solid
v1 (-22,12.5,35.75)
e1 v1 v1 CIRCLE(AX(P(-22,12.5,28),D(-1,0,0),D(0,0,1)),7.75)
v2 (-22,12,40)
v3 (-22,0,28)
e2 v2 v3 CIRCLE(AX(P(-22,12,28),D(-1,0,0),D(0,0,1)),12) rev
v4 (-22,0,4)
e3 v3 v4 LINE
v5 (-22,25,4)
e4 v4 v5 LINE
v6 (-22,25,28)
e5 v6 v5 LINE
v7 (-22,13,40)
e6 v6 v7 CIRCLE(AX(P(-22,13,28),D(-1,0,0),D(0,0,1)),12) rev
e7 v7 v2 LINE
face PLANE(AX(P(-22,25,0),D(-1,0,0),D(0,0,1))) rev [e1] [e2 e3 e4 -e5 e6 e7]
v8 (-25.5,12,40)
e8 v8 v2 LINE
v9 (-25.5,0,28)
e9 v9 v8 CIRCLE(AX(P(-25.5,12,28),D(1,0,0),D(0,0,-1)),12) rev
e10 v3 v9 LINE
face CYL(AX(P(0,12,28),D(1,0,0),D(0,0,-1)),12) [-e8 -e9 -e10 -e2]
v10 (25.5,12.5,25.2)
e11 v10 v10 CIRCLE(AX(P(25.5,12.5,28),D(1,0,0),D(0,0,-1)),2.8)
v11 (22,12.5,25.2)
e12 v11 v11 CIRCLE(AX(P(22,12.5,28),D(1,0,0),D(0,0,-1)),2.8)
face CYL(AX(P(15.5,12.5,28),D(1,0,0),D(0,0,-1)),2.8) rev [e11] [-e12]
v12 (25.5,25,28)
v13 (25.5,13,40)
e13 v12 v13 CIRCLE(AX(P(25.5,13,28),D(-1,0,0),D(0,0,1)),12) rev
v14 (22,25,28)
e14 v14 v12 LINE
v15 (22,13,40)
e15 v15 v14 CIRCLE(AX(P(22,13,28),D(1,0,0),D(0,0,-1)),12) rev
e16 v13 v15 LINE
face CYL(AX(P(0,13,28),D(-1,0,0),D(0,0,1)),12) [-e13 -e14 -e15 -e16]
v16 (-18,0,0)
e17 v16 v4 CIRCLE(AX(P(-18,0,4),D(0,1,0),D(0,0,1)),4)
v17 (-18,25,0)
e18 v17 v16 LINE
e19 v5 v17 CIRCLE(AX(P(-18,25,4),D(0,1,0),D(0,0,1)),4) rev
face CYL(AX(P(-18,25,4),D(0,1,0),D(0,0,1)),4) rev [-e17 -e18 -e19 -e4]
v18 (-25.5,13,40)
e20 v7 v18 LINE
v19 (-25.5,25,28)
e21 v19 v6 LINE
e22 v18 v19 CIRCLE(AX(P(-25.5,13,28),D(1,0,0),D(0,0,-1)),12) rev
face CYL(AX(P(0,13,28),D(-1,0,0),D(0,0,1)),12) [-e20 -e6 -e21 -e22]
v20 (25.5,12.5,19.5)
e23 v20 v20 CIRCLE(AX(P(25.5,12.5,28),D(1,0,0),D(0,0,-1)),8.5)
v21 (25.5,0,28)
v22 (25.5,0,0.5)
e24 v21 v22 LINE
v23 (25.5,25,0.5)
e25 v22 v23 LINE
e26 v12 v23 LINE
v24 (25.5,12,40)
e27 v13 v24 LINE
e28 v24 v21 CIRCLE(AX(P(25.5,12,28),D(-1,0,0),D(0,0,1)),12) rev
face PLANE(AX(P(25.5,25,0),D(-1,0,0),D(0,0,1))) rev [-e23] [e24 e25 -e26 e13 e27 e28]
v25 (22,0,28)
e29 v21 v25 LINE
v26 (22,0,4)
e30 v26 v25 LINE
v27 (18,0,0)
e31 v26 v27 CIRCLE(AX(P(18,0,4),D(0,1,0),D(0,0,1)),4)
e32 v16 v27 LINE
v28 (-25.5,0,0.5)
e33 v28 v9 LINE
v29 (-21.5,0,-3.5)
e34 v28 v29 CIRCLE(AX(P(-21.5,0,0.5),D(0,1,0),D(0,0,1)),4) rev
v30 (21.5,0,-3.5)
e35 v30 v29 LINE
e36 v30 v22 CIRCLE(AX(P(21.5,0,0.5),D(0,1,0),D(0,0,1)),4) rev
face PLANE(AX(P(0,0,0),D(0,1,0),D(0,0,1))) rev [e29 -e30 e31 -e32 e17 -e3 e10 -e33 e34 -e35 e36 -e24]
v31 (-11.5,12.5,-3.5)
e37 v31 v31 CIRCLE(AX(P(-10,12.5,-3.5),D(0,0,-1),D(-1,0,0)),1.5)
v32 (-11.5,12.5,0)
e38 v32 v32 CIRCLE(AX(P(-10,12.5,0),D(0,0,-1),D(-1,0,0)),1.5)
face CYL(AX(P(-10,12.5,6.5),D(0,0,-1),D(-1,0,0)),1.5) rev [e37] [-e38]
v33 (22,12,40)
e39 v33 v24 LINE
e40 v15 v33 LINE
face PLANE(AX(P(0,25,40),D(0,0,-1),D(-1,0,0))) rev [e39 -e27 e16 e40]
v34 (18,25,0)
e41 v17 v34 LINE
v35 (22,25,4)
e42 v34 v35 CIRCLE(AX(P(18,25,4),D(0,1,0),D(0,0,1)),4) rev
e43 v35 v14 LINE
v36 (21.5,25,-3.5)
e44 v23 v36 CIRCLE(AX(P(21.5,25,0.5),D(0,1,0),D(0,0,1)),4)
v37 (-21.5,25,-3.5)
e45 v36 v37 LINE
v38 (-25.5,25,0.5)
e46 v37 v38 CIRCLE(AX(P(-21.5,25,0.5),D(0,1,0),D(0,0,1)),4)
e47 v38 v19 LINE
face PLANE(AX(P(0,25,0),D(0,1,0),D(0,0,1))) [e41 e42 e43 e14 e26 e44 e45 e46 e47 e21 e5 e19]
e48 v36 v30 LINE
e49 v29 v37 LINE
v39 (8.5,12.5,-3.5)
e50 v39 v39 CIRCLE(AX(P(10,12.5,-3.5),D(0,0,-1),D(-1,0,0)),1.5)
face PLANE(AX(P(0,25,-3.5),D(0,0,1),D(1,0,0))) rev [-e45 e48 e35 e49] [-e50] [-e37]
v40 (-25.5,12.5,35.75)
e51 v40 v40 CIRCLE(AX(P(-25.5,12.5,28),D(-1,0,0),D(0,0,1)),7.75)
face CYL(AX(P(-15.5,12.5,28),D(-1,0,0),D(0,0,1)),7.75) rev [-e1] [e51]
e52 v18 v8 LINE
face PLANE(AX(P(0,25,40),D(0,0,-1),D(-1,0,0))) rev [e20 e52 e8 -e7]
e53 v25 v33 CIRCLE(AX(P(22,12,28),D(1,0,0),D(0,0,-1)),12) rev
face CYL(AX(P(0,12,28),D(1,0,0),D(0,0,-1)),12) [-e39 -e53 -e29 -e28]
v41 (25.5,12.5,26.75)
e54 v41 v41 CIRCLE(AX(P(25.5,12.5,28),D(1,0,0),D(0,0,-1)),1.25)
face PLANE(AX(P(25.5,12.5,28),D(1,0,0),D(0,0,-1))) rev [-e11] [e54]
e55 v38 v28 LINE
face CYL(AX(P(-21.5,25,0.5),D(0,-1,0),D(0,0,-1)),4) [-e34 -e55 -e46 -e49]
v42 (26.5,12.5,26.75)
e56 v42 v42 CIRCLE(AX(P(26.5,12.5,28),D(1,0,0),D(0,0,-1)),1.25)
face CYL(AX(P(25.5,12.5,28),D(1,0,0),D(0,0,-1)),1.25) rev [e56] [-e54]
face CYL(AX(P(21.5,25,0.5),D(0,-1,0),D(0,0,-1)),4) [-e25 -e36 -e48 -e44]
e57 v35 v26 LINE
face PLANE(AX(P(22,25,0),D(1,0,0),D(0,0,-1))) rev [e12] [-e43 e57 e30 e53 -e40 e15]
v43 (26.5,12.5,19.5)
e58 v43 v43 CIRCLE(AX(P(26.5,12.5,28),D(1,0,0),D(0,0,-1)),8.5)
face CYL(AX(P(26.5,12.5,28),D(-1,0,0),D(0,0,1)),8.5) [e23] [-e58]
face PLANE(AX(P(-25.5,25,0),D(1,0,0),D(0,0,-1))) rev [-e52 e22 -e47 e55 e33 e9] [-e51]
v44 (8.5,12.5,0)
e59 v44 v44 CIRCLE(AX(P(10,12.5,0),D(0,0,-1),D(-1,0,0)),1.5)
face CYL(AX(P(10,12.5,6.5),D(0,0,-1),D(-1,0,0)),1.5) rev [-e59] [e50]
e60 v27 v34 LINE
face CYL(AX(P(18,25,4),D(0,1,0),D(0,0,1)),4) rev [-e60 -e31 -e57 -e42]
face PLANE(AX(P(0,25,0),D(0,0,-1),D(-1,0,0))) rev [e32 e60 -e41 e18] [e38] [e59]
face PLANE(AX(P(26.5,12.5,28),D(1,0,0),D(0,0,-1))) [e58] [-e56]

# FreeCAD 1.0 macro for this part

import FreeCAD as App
import Part
import Sketcher
from FreeCAD import Vector
Q = App.Units.Quantity


def edges_at(feature, points):
    """Names of the edges that pass closest to the given points."""
    edges = feature.Shape.Edges
    near = lambda p: min(range(len(edges)), key=lambda i: edges[i].distToShape(Part.Vertex(*p))[0])
    return sorted({f"Edge{near(p) + 1}" for p in points})


def add_polygon(sketch, points):
    """Adds a closed chain of lines whose ends are joined by coincident constraints."""
    first, n = sketch.GeometryCount, len(points)
    for a, b in zip(points, points[1:] + points[:1]):
        sketch.addGeometry(Part.LineSegment(App.Vector(*a, 0), App.Vector(*b, 0)), False)
    for i in range(n):
        sketch.addConstraint(Sketcher.Constraint("Coincident", first + i, 2, first + (i + 1) % n, 1))

doc = App.newDocument("Part")
body = doc.addObject("PartDesign::Body", "Body")

sketch1 = body.newObject("Sketcher::SketchObject", "Sketch")
sketch1.AttachmentSupport = (doc.getObject("XZ_Plane"), [""])
sketch1.MapMode = "FlatFace"
add_polygon(sketch1, [(-25.5, 40), (-22, 40), (-22, 0), (22, 0), (22, 40), (25.5, 40), (25.5, -3.5), (-25.5, -3.5)])
sketch1.addConstraint([
    Sketcher.Constraint("Horizontal", 0),
    Sketcher.Constraint("Vertical", 1),
    Sketcher.Constraint("Horizontal", 2),
    Sketcher.Constraint("Vertical", 3),
    Sketcher.Constraint("Horizontal", 4),
    Sketcher.Constraint("Vertical", 5),
    Sketcher.Constraint("Horizontal", 6),
    Sketcher.Constraint("Vertical", 7),
    Sketcher.Constraint("Symmetric", 1, 2, 2, 2, -1, 1),
    Sketcher.Constraint("Symmetric", 4, 2, 7, 2, -2),
    Sketcher.Constraint("DistanceX", 2, 1, 2, 2, Q("44 mm")),
    Sketcher.Constraint("DistanceX", 6, 2, 6, 1, Q("51 mm")),
    Sketcher.Constraint("DistanceY", 1, 2, 1, 1, Q("40 mm")),
    Sketcher.Constraint("DistanceY", 5, 2, 5, 1, Q("43.5 mm")),
])
pad1 = body.newObject("PartDesign::Pad", "Pad")
pad1.Profile = sketch1
pad1.Length = 25
pad1.Reversed = True
doc.recompute()

fillet = body.newObject("PartDesign::Fillet", "Fillet")
fillet.Base = (pad1, edges_at(pad1, [
    (23.75, 0, 40),
    (-23.75, 0, 40),
    (23.75, 25, 40),
    (-23.75, 25, 40),
]))
fillet.Radius = 12

sketch2 = body.newObject("Sketcher::SketchObject", "Sketch001")
sketch2.AttachmentSupport = (doc.getObject("YZ_Plane"), [""])
sketch2.MapMode = "FlatFace"
sketch2.AttachmentOffset = App.Placement(Vector(0, 0, -25.5), App.Rotation())
sketch2.addGeometry(Part.Circle(Vector(12, 28, 0), Vector(0, 0, 1), 8), False)
sketch2.addConstraint([
    Sketcher.Constraint("Diameter", 0, Q("15.5 mm")),
    Sketcher.Constraint("DistanceY", -1, 1, 0, 3, Q("28 mm")),
    Sketcher.Constraint("DistanceX", -1, 1, 0, 3, Q("12.5 mm")),
])
pocket1 = body.newObject("PartDesign::Pocket", "Pocket")
pocket1.Profile = sketch2
pocket1.Length = 10
pocket1.Reversed = True

sketch3 = body.newObject("Sketcher::SketchObject", "Sketch002")
sketch3.AttachmentSupport = (doc.getObject("YZ_Plane"), [""])
sketch3.MapMode = "FlatFace"
sketch3.AttachmentOffset = App.Placement(Vector(0, 0, 25.5), App.Rotation())
sketch3.addGeometry(Part.Circle(Vector(12.5, 28, 0), Vector(0, 0, 1), 2.8), False)
sketch3.addConstraint([
    Sketcher.Constraint("Diameter", 0, Q("5.6 mm")),
    Sketcher.Constraint("DistanceY", -1, 1, 0, 3, Q("28 mm")),
    Sketcher.Constraint("DistanceX", -1, 1, 0, 3, Q("12.5 mm")),
])
pocket2 = body.newObject("PartDesign::Pocket", "Pocket001")
pocket2.Profile = sketch3
pocket2.Length = 10

sketch4 = body.newObject("Sketcher::SketchObject", "Sketch003")
sketch4.AttachmentSupport = (doc.getObject("YZ_Plane"), [""])
sketch4.MapMode = "FlatFace"
sketch4.AttachmentOffset = App.Placement(Vector(0, 0, 25.5), App.Rotation())
sketch4.addGeometry(Part.Circle(Vector(12, 28, 0), Vector(0, 0, 1), 8), False)
sketch4.addConstraint([
    Sketcher.Constraint("Diameter", 0, Q("17 mm")),
    Sketcher.Constraint("DistanceY", -1, 1, 0, 3, Q("28 mm")),
    Sketcher.Constraint("DistanceX", -1, 1, 0, 3, Q("12.5 mm")),
])
pad2 = body.newObject("PartDesign::Pad", "Pad001")
pad2.Profile = sketch4
pad2.Length = 1

sketch5 = body.newObject("Sketcher::SketchObject", "Sketch004")
sketch5.AttachmentSupport = (doc.getObject("YZ_Plane"), [""])
sketch5.MapMode = "FlatFace"
sketch5.AttachmentOffset = App.Placement(Vector(0, 0, 26.5), App.Rotation())
sketch5.addGeometry(Part.Circle(Vector(12.5, 28, 0), Vector(0, 0, 1), 1.2), False)
sketch5.addConstraint([
    Sketcher.Constraint("Diameter", 0, Q("2.5 mm")),
    Sketcher.Constraint("DistanceY", -1, 1, 0, 3, Q("28 mm")),
    Sketcher.Constraint("DistanceX", -1, 1, 0, 3, Q("12.5 mm")),
])
pocket3 = body.newObject("PartDesign::Pocket", "Pocket002")
pocket3.Profile = sketch5
pocket3.Length = 1
doc.recompute()

fillet2 = body.newObject("PartDesign::Fillet", "Fillet001")
fillet2.Base = (pocket3, edges_at(pocket3, [(22, 12.5, 0), (-22, 12.5, 0)]))
fillet2.Radius = 4
doc.recompute()

fillet3 = body.newObject("PartDesign::Fillet", "Fillet002")
fillet3.Base = (fillet2, edges_at(fillet2, [(-25.5, 12.5, -3.5), (25.5, 12.5, -3.5)]))
fillet3.Radius = 4

sketch6 = body.newObject("Sketcher::SketchObject", "Sketch005")
sketch6.AttachmentSupport = (doc.getObject("XY_Plane"), [""])
sketch6.MapMode = "FlatFace"
sketch6.AttachmentOffset = App.Placement(Vector(0, 0, -3.5), App.Rotation())
sketch6.addGeometry([
    Part.Circle(Vector(10, 12.5, 0), Vector(0, 0, 1), 1.5),
    Part.Circle(Vector(-10, 12.5, 0), Vector(0, 0, 1), 1.5),
], False)
sketch6.addConstraint([
    Sketcher.Constraint("Equal", 0, 1),
    Sketcher.Constraint("Symmetric", 0, 3, 1, 3, -2),
    Sketcher.Constraint("Diameter", 0, Q("3 mm")),
    Sketcher.Constraint("DistanceX", -1, 1, 0, 3, Q("10 mm")),
    Sketcher.Constraint("DistanceY", -1, 1, 0, 3, Q("12.5 mm")),
])
pocket4 = body.newObject("PartDesign::Pocket", "Pocket003")
pocket4.Profile = sketch6
pocket4.Length = 10
pocket4.Reversed = True

doc.recompute()
